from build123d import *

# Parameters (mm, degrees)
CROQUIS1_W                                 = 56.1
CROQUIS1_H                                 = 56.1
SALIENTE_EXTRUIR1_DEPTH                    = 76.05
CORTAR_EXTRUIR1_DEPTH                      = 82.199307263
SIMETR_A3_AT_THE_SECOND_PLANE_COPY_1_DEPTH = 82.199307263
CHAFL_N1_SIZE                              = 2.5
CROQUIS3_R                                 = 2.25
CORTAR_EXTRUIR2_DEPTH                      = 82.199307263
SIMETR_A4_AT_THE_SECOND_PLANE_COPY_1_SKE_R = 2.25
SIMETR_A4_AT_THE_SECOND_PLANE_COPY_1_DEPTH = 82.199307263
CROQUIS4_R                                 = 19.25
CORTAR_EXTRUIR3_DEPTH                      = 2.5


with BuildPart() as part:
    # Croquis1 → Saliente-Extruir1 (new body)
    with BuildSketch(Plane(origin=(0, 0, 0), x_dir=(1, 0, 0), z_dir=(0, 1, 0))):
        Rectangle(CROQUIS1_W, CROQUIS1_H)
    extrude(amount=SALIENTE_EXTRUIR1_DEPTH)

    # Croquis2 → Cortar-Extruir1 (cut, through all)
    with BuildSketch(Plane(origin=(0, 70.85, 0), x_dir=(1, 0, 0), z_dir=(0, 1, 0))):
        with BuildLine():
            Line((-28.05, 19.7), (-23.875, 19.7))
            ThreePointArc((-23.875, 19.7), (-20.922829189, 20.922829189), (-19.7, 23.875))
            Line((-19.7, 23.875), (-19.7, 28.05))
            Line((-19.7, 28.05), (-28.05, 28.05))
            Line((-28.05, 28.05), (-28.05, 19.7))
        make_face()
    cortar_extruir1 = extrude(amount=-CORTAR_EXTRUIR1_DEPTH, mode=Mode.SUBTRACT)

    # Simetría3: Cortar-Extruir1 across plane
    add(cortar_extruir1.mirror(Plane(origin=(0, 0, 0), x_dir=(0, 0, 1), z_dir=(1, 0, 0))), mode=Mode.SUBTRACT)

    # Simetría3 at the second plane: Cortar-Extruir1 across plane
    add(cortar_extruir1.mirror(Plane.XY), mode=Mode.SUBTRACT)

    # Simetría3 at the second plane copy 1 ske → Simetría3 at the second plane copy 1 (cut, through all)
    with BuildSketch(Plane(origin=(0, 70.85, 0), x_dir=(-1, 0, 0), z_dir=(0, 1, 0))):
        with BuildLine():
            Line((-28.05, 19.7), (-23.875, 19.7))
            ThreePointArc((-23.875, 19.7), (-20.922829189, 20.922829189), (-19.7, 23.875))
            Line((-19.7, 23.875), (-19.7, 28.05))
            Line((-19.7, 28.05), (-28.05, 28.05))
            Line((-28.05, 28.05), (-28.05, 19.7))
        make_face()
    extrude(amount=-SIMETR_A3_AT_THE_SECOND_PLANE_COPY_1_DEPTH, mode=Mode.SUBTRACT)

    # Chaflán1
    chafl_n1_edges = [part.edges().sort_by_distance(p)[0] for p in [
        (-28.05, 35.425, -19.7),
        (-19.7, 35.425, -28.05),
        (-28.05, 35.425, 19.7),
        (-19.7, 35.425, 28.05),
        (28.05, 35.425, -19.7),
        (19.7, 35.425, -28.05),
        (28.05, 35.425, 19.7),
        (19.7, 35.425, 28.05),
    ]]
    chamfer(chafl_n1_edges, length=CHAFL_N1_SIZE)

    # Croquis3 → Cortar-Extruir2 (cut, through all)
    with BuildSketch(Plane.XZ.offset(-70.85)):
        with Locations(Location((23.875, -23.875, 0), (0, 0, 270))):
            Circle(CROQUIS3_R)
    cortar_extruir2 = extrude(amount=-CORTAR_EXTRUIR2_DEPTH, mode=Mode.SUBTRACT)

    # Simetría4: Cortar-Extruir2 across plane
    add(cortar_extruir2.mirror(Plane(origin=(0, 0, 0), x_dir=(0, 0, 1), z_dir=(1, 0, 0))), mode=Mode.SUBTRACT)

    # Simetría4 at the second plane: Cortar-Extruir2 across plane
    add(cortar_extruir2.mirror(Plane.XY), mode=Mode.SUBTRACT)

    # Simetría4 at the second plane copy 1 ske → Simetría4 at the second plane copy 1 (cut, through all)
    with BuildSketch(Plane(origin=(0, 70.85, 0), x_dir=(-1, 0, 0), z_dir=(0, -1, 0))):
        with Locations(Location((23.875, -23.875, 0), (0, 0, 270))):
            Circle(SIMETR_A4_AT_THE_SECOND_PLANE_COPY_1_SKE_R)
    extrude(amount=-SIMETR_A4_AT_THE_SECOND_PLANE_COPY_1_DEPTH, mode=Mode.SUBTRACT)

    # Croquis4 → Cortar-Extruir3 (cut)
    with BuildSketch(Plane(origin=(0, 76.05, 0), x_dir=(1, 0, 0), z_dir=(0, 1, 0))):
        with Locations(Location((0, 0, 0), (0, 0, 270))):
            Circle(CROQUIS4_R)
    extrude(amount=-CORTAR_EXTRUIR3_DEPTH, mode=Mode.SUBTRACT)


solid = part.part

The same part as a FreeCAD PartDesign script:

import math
import FreeCAD as App
import Part
import Sketcher

V = App.Vector


def edges_at(feature, points):
    """Names of the edges that pass closest to the given points."""
    edges = feature.Shape.Edges
    near = lambda p: min(range(len(edges)), key=lambda i: edges[i].distToShape(Part.Vertex(*p))[0])
    return sorted({f"Edge{near(p) + 1}" for p in points})

doc = App.newDocument("Part")
body = doc.addObject("PartDesign::Body", "Body")

sketch1 = body.newObject("Sketcher::SketchObject", "Sketch")
sketch1.AttachmentSupport = (doc.getObject("XZ_Plane"), [""])
sketch1.MapMode = "FlatFace"
sketch1.addGeometry(Part.LineSegment(V(-28, -28, 0), V(-28, 28, 0)), False)
sketch1.addGeometry(Part.LineSegment(V(-28, 28, 0), V(28, 28, 0)), False)
sketch1.addGeometry(Part.LineSegment(V(28, 28, 0), V(28, -28, 0)), False)
sketch1.addGeometry(Part.LineSegment(V(28, -28, 0), V(-28, -28, 0)), False)
sketch1.addConstraint(Sketcher.Constraint("Coincident", 0, 2, 1, 1))
sketch1.addConstraint(Sketcher.Constraint("Coincident", 1, 2, 2, 1))
sketch1.addConstraint(Sketcher.Constraint("Coincident", 2, 2, 3, 1))
sketch1.addConstraint(Sketcher.Constraint("Coincident", 3, 2, 0, 1))
sketch1.addConstraint(Sketcher.Constraint("Vertical", 0))
sketch1.addConstraint(Sketcher.Constraint("Horizontal", 1))
sketch1.addConstraint(Sketcher.Constraint("Vertical", 2))
sketch1.addConstraint(Sketcher.Constraint("Horizontal", 3))
sketch1.addConstraint(Sketcher.Constraint("Symmetric", 0, 2, 2, 2, -1, 1))
sketch1.addConstraint(Sketcher.Constraint("Equal", 3, 0))
sketch1.addConstraint(Sketcher.Constraint("DistanceX", 1, 1, 1, 2, 56.1))
pad1 = body.newObject("PartDesign::Pad", "Pad")
pad1.Profile = sketch1
pad1.Length = 76.05
pad1.Reversed = True

sketch2 = body.newObject("Sketcher::SketchObject", "Sketch001")
sketch2.AttachmentSupport = (doc.getObject("XZ_Plane"), [""])
sketch2.MapMode = "FlatFace"
sketch2.AttachmentOffset = App.Placement(V(0, 0, -70.85), App.Rotation())
sketch2.addGeometry(Part.LineSegment(V(-28.1, -19.7, 0), V(-23.9, -19.7, 0)), False)
sketch2.addGeometry(Part.ArcOfCircle(Part.Circle(V(-23.9, -23.9, 0), V(0, 0, 1), 4.2), math.radians(0), math.radians(90)), False)
sketch2.addGeometry(Part.LineSegment(V(-19.7, -23.9, 0), V(-19.7, -28.1, 0)), False)
sketch2.addGeometry(Part.LineSegment(V(-19.7, -28.1, 0), V(-28.1, -28.1, 0)), False)
sketch2.addGeometry(Part.LineSegment(V(-28.1, -28.1, 0), V(-28.1, -19.7, 0)), False)
sketch2.addConstraint(Sketcher.Constraint("Tangent", 0, 2, 1, 2))
sketch2.addConstraint(Sketcher.Constraint("Tangent", 1, 1, 2, 1))
sketch2.addConstraint(Sketcher.Constraint("Coincident", 2, 2, 3, 1))
sketch2.addConstraint(Sketcher.Constraint("Coincident", 3, 2, 4, 1))
sketch2.addConstraint(Sketcher.Constraint("Coincident", 4, 2, 0, 1))
sketch2.addConstraint(Sketcher.Constraint("Horizontal", 0))
sketch2.addConstraint(Sketcher.Constraint("Vertical", 2))
sketch2.addConstraint(Sketcher.Constraint("Horizontal", 3))
sketch2.addConstraint(Sketcher.Constraint("Vertical", 4))
sketch2.addConstraint(Sketcher.Constraint("Equal", 0, 2))
sketch2.addConstraint(Sketcher.Constraint("Radius", 1, 4.175))
sketch2.addConstraint(Sketcher.Constraint("DistanceX", 3, 2, 3, 1, 8.35))
sketch2.addConstraint(Sketcher.Constraint("DistanceY", 0, 2, -1, 1, 19.7))
sketch2.addConstraint(Sketcher.Constraint("DistanceX", 1, 1, -1, 1, 19.7))
pocket1 = body.newObject("PartDesign::Pocket", "Pocket")
pocket1.Profile = sketch2
pocket1.Type = "ThroughAll"
pocket1.Reversed = True
doc.recompute()

mirrored = body.newObject("PartDesign::Mirrored", "Mirrored")
mirrored.Originals = [pocket1]
mirrored.MirrorPlane = (doc.getObject("YZ_Plane"), [""])
body.Tip = mirrored
doc.recompute()

mirrored2 = body.newObject("PartDesign::Mirrored", "Mirrored001")
mirrored2.Originals = [pocket1]
mirrored2.MirrorPlane = (doc.getObject("XY_Plane"), [""])
body.Tip = mirrored2

sketch3 = body.newObject("Sketcher::SketchObject", "Sketch002")
sketch3.AttachmentSupport = (doc.getObject("XZ_Plane"), [""])
sketch3.MapMode = "FlatFace"
sketch3.AttachmentOffset = App.Placement(V(0, 0, -70.85), App.Rotation())
sketch3.addGeometry(Part.LineSegment(V(28.1, 19.7, 0), V(23.9, 19.7, 0)), False)
sketch3.addGeometry(Part.ArcOfCircle(Part.Circle(V(23.9, 23.9, 0), V(0, 0, 1), 4.2), math.radians(-180), math.radians(-90)), False)
sketch3.addGeometry(Part.LineSegment(V(19.7, 23.9, 0), V(19.7, 28.1, 0)), False)
sketch3.addGeometry(Part.LineSegment(V(19.7, 28.1, 0), V(28.1, 28.1, 0)), False)
sketch3.addGeometry(Part.LineSegment(V(28.1, 28.1, 0), V(28.1, 19.7, 0)), False)
sketch3.addConstraint(Sketcher.Constraint("Tangent", 0, 2, 1, 2))
sketch3.addConstraint(Sketcher.Constraint("Tangent", 1, 1, 2, 1))
sketch3.addConstraint(Sketcher.Constraint("Coincident", 2, 2, 3, 1))
sketch3.addConstraint(Sketcher.Constraint("Coincident", 3, 2, 4, 1))
sketch3.addConstraint(Sketcher.Constraint("Coincident", 4, 2, 0, 1))
sketch3.addConstraint(Sketcher.Constraint("Horizontal", 0))
sketch3.addConstraint(Sketcher.Constraint("Vertical", 2))
sketch3.addConstraint(Sketcher.Constraint("Horizontal", 3))
sketch3.addConstraint(Sketcher.Constraint("Vertical", 4))
sketch3.addConstraint(Sketcher.Constraint("Equal", 0, 2))
sketch3.addConstraint(Sketcher.Constraint("Radius", 1, 4.175))
sketch3.addConstraint(Sketcher.Constraint("DistanceX", 3, 1, 3, 2, 8.35))
sketch3.addConstraint(Sketcher.Constraint("DistanceY", -1, 1, 0, 2, 19.7))
sketch3.addConstraint(Sketcher.Constraint("DistanceX", -1, 1, 1, 1, 19.7))
pocket2 = body.newObject("PartDesign::Pocket", "Pocket001")
pocket2.Profile = sketch3
pocket2.Type = "ThroughAll"
pocket2.Reversed = True
doc.recompute()

chamfer = body.newObject("PartDesign::Chamfer", "Chamfer")
chamfer.Base = (pocket2, edges_at(pocket2, [
    (-28.05, 35.425, -19.7),
    (-19.7, 35.425, -28.05),
    (-28.05, 35.425, 19.7),
    (-19.7, 35.425, 28.05),
    (28.05, 35.425, -19.7),
    (19.7, 35.425, -28.05),
    (28.05, 35.425, 19.7),
    (19.7, 35.425, 28.05),
]))
chamfer.Size = 2.5

sketch4 = body.newObject("Sketcher::SketchObject", "Sketch003")
sketch4.AttachmentSupport = (doc.getObject("XZ_Plane"), [""])
sketch4.MapMode = "FlatFace"
sketch4.AttachmentOffset = App.Placement(V(0, 0, -70.85), App.Rotation())
sketch4.addGeometry(Part.Circle(V(23.9, -23.9, 0), V(0, 0, 1), 2.2), False)
sketch4.addConstraint(Sketcher.Constraint("Diameter", 0, 4.5))
sketch4.addConstraint(Sketcher.Constraint("DistanceX", -1, 1, 0, 3, 23.875))
sketch4.addConstraint(Sketcher.Constraint("DistanceY", 0, 3, -1, 1, 23.875))
pocket3 = body.newObject("PartDesign::Pocket", "Pocket002")
pocket3.Profile = sketch4
pocket3.Type = "ThroughAll"
doc.recompute()

mirrored3 = body.newObject("PartDesign::Mirrored", "Mirrored002")
mirrored3.Originals = [pocket3]
mirrored3.MirrorPlane = (doc.getObject("YZ_Plane"), [""])
body.Tip = mirrored3
doc.recompute()

mirrored4 = body.newObject("PartDesign::Mirrored", "Mirrored003")
mirrored4.Originals = [pocket3]
mirrored4.MirrorPlane = (doc.getObject("XY_Plane"), [""])
body.Tip = mirrored4

sketch5 = body.newObject("Sketcher::SketchObject", "Sketch004")
sketch5.AttachmentSupport = (doc.getObject("XZ_Plane"), [""])
sketch5.MapMode = "FlatFace"
sketch5.AttachmentOffset = App.Placement(V(0, 0, -70.85), App.Rotation())
sketch5.addGeometry(Part.Circle(V(-23.9, 23.9, 0), V(0, 0, 1), 2.2), False)
sketch5.addConstraint(Sketcher.Constraint("Diameter", 0, 4.5))
sketch5.addConstraint(Sketcher.Constraint("DistanceX", 0, 3, -1, 1, 23.875))
sketch5.addConstraint(Sketcher.Constraint("DistanceY", -1, 1, 0, 3, 23.875))
pocket4 = body.newObject("PartDesign::Pocket", "Pocket003")
pocket4.Profile = sketch5
pocket4.Type = "ThroughAll"

sketch6 = body.newObject("Sketcher::SketchObject", "Sketch005")
sketch6.AttachmentSupport = (doc.getObject("XZ_Plane"), [""])
sketch6.MapMode = "FlatFace"
sketch6.AttachmentOffset = App.Placement(V(0, 0, -76.05), App.Rotation())
sketch6.addGeometry(Part.Circle(V(0, 0, 0), V(0, 0, 1), 19), False)
sketch6.addConstraint(Sketcher.Constraint("Coincident", 0, 3, -1, 1))
sketch6.addConstraint(Sketcher.Constraint("Diameter", 0, 38.5))
pocket5 = body.newObject("PartDesign::Pocket", "Pocket004")
pocket5.Profile = sketch6
pocket5.Length = 2.5
pocket5.Reversed = True

doc.recompute()
